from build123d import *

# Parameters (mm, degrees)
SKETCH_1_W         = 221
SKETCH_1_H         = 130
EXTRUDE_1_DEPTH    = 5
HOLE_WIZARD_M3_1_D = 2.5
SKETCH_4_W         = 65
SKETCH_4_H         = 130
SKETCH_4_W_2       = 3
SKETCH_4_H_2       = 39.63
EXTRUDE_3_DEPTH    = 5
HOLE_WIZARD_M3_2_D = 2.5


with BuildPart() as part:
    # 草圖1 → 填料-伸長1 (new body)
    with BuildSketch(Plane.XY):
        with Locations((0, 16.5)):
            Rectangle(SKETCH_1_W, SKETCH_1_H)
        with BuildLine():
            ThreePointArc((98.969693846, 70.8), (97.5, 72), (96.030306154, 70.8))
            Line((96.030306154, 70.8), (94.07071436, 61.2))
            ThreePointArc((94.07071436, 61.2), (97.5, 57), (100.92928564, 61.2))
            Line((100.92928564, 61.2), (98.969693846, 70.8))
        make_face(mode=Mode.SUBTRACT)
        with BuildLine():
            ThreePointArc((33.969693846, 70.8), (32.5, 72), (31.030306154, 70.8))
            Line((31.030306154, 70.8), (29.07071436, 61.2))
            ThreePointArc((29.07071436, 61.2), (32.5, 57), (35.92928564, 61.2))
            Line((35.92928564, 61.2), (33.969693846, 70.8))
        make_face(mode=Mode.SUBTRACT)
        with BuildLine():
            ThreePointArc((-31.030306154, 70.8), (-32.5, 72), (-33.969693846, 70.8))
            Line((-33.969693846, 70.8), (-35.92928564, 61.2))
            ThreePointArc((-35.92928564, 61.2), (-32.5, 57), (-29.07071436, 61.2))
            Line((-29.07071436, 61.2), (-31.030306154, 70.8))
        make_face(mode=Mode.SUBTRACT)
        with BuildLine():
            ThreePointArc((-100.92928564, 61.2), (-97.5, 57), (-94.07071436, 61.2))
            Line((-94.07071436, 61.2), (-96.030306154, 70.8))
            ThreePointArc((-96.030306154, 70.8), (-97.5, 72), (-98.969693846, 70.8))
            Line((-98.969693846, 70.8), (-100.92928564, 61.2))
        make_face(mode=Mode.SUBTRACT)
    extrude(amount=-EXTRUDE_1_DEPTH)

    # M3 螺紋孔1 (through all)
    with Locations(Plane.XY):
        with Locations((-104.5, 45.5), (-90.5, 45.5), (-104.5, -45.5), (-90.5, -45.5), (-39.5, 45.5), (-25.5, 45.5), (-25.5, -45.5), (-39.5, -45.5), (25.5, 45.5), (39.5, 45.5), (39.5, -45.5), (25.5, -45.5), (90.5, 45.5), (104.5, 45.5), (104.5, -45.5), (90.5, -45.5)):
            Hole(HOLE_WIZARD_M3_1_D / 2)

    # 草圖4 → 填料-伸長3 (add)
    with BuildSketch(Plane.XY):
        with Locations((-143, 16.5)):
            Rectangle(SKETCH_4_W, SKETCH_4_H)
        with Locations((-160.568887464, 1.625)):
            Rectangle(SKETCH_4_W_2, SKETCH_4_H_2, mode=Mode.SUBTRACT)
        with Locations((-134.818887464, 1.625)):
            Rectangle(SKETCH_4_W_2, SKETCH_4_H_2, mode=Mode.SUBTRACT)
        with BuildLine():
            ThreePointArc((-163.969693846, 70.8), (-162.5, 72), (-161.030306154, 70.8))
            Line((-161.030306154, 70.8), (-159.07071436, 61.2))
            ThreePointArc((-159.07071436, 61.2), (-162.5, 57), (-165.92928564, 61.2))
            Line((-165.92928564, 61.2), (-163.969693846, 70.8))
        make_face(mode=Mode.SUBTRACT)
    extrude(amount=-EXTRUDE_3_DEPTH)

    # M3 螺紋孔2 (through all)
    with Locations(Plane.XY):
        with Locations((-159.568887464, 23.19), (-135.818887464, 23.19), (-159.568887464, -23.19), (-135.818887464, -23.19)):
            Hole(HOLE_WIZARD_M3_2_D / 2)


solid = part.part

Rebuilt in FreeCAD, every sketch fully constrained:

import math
import FreeCAD as App
import Part
import Sketcher


def add_polygon(sketch, points):
    """Adds a closed chain of lines whose ends are joined by coincident constraints."""
    first, n = sketch.GeometryCount, len(points)
    for a, b in zip(points, points[1:] + points[:1]):
        sketch.addGeometry(Part.LineSegment(App.Vector(*a, 0), App.Vector(*b, 0)), False)
    for i in range(n):
        sketch.addConstraint(Sketcher.Constraint("Coincident", first + i, 2, first + (i + 1) % n, 1))

doc = App.newDocument("Part")
body = doc.addObject("PartDesign::Body", "Body")

sketch1 = body.newObject("Sketcher::SketchObject", "Sketch")
sketch1.AttachmentSupport = (doc.getObject("XY_Plane"), [""])
sketch1.MapMode = "FlatFace"
add_polygon(sketch1, [(-110.5, 81.5), (-110.5, -48.5), (110.5, -48.5), (110.5, 81.5)])
sketch1.addGeometry(Part.ArcOfCircle(Part.Circle(App.Vector(-97.5, 60.5, 0), App.Vector(0, 0, 1), 3.5), math.radians(168), math.radians(372)), False)
sketch1.addGeometry(Part.LineSegment(App.Vector(-100.9, 61.2, 0), App.Vector(-99, 70.8, 0)), False)
sketch1.addGeometry(Part.ArcOfCircle(Part.Circle(App.Vector(-97.5, 70.5, 0), App.Vector(0, 0, 1), 1.5), math.radians(12), math.radians(168)), False)
sketch1.addGeometry(Part.LineSegment(App.Vector(-96, 70.8, 0), App.Vector(-94.1, 61.2, 0)), False)
sketch1.addGeometry(Part.ArcOfCircle(Part.Circle(App.Vector(-32.5, 70.5, 0), App.Vector(0, 0, 1), 1.5), math.radians(12), math.radians(168)), False)
sketch1.addGeometry(Part.LineSegment(App.Vector(-31, 70.8, 0), App.Vector(-29.1, 61.2, 0)), False)
sketch1.addGeometry(Part.ArcOfCircle(Part.Circle(App.Vector(-32.5, 60.5, 0), App.Vector(0, 0, 1), 3.5), math.radians(168), math.radians(372)), False)
sketch1.addGeometry(Part.LineSegment(App.Vector(-35.9, 61.2, 0), App.Vector(-34, 70.8, 0)), False)
sketch1.addGeometry(Part.ArcOfCircle(Part.Circle(App.Vector(32.5, 70.5, 0), App.Vector(0, 0, 1), 1.5), math.radians(12), math.radians(168)), False)
sketch1.addGeometry(Part.LineSegment(App.Vector(34, 70.8, 0), App.Vector(35.9, 61.2, 0)), False)
sketch1.addGeometry(Part.ArcOfCircle(Part.Circle(App.Vector(32.5, 60.5, 0), App.Vector(0, 0, 1), 3.5), math.radians(168), math.radians(372)), False)
sketch1.addGeometry(Part.LineSegment(App.Vector(29.1, 61.2, 0), App.Vector(31, 70.8, 0)), False)
sketch1.addGeometry(Part.ArcOfCircle(Part.Circle(App.Vector(97.5, 70.5, 0), App.Vector(0, 0, 1), 1.5), math.radians(12), math.radians(168)), False)
sketch1.addGeometry(Part.LineSegment(App.Vector(99, 70.8, 0), App.Vector(100.9, 61.2, 0)), False)
sketch1.addGeometry(Part.ArcOfCircle(Part.Circle(App.Vector(97.5, 60.5, 0), App.Vector(0, 0, 1), 3.5), math.radians(168), math.radians(372)), False)
sketch1.addGeometry(Part.LineSegment(App.Vector(94.1, 61.2, 0), App.Vector(96, 70.8, 0)), False)
sketch1.addConstraint(Sketcher.Constraint("Tangent", 4, 1, 5, 1))
sketch1.addConstraint(Sketcher.Constraint("Tangent", 5, 2, 6, 2))
sketch1.addConstraint(Sketcher.Constraint("Tangent", 6, 1, 7, 1))
sketch1.addConstraint(Sketcher.Constraint("Tangent", 7, 2, 4, 2))
sketch1.addConstraint(Sketcher.Constraint("Tangent", 8, 1, 9, 1))
sketch1.addConstraint(Sketcher.Constraint("Tangent", 9, 2, 10, 2))
sketch1.addConstraint(Sketcher.Constraint("Tangent", 10, 1, 11, 1))
sketch1.addConstraint(Sketcher.Constraint("Tangent", 11, 2, 8, 2))
sketch1.addConstraint(Sketcher.Constraint("Tangent", 12, 1, 13, 1))
sketch1.addConstraint(Sketcher.Constraint("Tangent", 13, 2, 14, 2))
sketch1.addConstraint(Sketcher.Constraint("Tangent", 14, 1, 15, 1))
sketch1.addConstraint(Sketcher.Constraint("Tangent", 15, 2, 12, 2))
sketch1.addConstraint(Sketcher.Constraint("Tangent", 16, 1, 17, 1))
sketch1.addConstraint(Sketcher.Constraint("Tangent", 17, 2, 18, 2))
sketch1.addConstraint(Sketcher.Constraint("Tangent", 18, 1, 19, 1))
sketch1.addConstraint(Sketcher.Constraint("Tangent", 19, 2, 16, 2))
sketch1.addConstraint(Sketcher.Constraint("Vertical", 0))
sketch1.addConstraint(Sketcher.Constraint("Horizontal", 1))
sketch1.addConstraint(Sketcher.Constraint("Vertical", 2))
sketch1.addConstraint(Sketcher.Constraint("Horizontal", 3))
sketch1.addConstraint(Sketcher.Constraint("Equal", 6, 8))
sketch1.addConstraint(Sketcher.Constraint("Equal", 4, 10))
sketch1.addConstraint(Sketcher.Constraint("Equal", 8, 12))
sketch1.addConstraint(Sketcher.Constraint("Equal", 10, 14))
sketch1.addConstraint(Sketcher.Constraint("Equal", 12, 16))
sketch1.addConstraint(Sketcher.Constraint("Equal", 14, 18))
sketch1.addConstraint(Sketcher.Constraint("Symmetric", 8, 3, 12, 3, -2))
sketch1.addConstraint(Sketcher.Constraint("Symmetric", 10, 3, 14, 3, -2))
sketch1.addConstraint(Sketcher.Constraint("Symmetric", 6, 3, 16, 3, -2))
sketch1.addConstraint(Sketcher.Constraint("Symmetric", 4, 3, 18, 3, -2))
sketch1.addConstraint(Sketcher.Constraint("Parallel", 7, 9))
sketch1.addConstraint(Sketcher.Constraint("Parallel", 5, 11))
sketch1.addConstraint(Sketcher.Constraint("Parallel", 9, 13))
sketch1.addConstraint(Sketcher.Constraint("Horizontal", 6, 3, 8, 3))
sketch1.addConstraint(Sketcher.Constraint("Radius", 4, 3.5))
sketch1.addConstraint(Sketcher.Constraint("Radius", 6, 1.5))
sketch1.addConstraint(Sketcher.Constraint("DistanceX", 1, 1, 1, 2, 221.0))
sketch1.addConstraint(Sketcher.Constraint("DistanceY", 0, 2, 0, 1, 130.0))
sketch1.addConstraint(Sketcher.Constraint("DistanceY", 4, 3, 6, 3, 10.0))
sketch1.addConstraint(Sketcher.Constraint("DistanceX", 6, 3, 8, 3, 65.0))
sketch1.addConstraint(Sketcher.Constraint("DistanceX", 8, 3, 12, 3, 65.0))
sketch1.addConstraint(Sketcher.Constraint("DistanceX", 0, 2, 4, 3, 13.0))
sketch1.addConstraint(Sketcher.Constraint("DistanceY", 0, 2, 4, 3, 109.0))
sketch1.addConstraint(Sketcher.Constraint("DistanceY", -1, 1, 4, 3, 60.5))
pad1 = body.newObject("PartDesign::Pad", "Pad")
pad1.Profile = sketch1
pad1.Length = 5
pad1.Reversed = True

sketch2 = body.newObject("Sketcher::SketchObject", "Sketch001")
sketch2.AttachmentSupport = (doc.getObject("XY_Plane"), [""])
sketch2.MapMode = "FlatFace"
sketch2.addGeometry(Part.Circle(App.Vector(-104.5, 45.5, 0), App.Vector(0, 0, 1), 1.2), False)
sketch2.addGeometry(Part.Circle(App.Vector(-90.5, 45.5, 0), App.Vector(0, 0, 1), 1.2), False)
sketch2.addGeometry(Part.Circle(App.Vector(-104.5, -45.5, 0), App.Vector(0, 0, 1), 1.2), False)
sketch2.addGeometry(Part.Circle(App.Vector(-90.5, -45.5, 0), App.Vector(0, 0, 1), 1.2), False)
sketch2.addGeometry(Part.Circle(App.Vector(-39.5, 45.5, 0), App.Vector(0, 0, 1), 1.2), False)
sketch2.addGeometry(Part.Circle(App.Vector(-25.5, 45.5, 0), App.Vector(0, 0, 1), 1.2), False)
sketch2.addGeometry(Part.Circle(App.Vector(-25.5, -45.5, 0), App.Vector(0, 0, 1), 1.2), False)
sketch2.addGeometry(Part.Circle(App.Vector(-39.5, -45.5, 0), App.Vector(0, 0, 1), 1.2), False)
sketch2.addGeometry(Part.Circle(App.Vector(25.5, 45.5, 0), App.Vector(0, 0, 1), 1.2), False)
sketch2.addGeometry(Part.Circle(App.Vector(39.5, 45.5, 0), App.Vector(0, 0, 1), 1.2), False)
sketch2.addGeometry(Part.Circle(App.Vector(39.5, -45.5, 0), App.Vector(0, 0, 1), 1.2), False)
sketch2.addGeometry(Part.Circle(App.Vector(25.5, -45.5, 0), App.Vector(0, 0, 1), 1.2), False)
sketch2.addGeometry(Part.Circle(App.Vector(90.5, 45.5, 0), App.Vector(0, 0, 1), 1.2), False)
sketch2.addGeometry(Part.Circle(App.Vector(104.5, 45.5, 0), App.Vector(0, 0, 1), 1.2), False)
sketch2.addGeometry(Part.Circle(App.Vector(104.5, -45.5, 0), App.Vector(0, 0, 1), 1.2), False)
sketch2.addGeometry(Part.Circle(App.Vector(90.5, -45.5, 0), App.Vector(0, 0, 1), 1.2), False)
sketch2.addConstraint(Sketcher.Constraint("Equal", 0, 1))
sketch2.addConstraint(Sketcher.Constraint("Equal", 1, 2))
sketch2.addConstraint(Sketcher.Constraint("Equal", 2, 3))
sketch2.addConstraint(Sketcher.Constraint("Equal", 3, 4))
sketch2.addConstraint(Sketcher.Constraint("Equal", 4, 5))
sketch2.addConstraint(Sketcher.Constraint("Equal", 5, 6))
sketch2.addConstraint(Sketcher.Constraint("Equal", 6, 7))
sketch2.addConstraint(Sketcher.Constraint("Equal", 7, 8))
sketch2.addConstraint(Sketcher.Constraint("Equal", 8, 9))
sketch2.addConstraint(Sketcher.Constraint("Equal", 9, 10))
sketch2.addConstraint(Sketcher.Constraint("Equal", 10, 11))
sketch2.addConstraint(Sketcher.Constraint("Equal", 11, 12))
sketch2.addConstraint(Sketcher.Constraint("Equal", 12, 13))
sketch2.addConstraint(Sketcher.Constraint("Equal", 13, 14))
sketch2.addConstraint(Sketcher.Constraint("Equal", 14, 15))
sketch2.addConstraint(Sketcher.Constraint("Symmetric", 6, 3, 8, 3, -1, 1))
sketch2.addConstraint(Sketcher.Constraint("Symmetric", 7, 3, 9, 3, -1, 1))
sketch2.addConstraint(Sketcher.Constraint("Symmetric", 4, 3, 10, 3, -1, 1))
sketch2.addConstraint(Sketcher.Constraint("Symmetric", 5, 3, 11, 3, -1, 1))
sketch2.addConstraint(Sketcher.Constraint("Symmetric", 3, 3, 12, 3, -1, 1))
sketch2.addConstraint(Sketcher.Constraint("Symmetric", 2, 3, 13, 3, -1, 1))
sketch2.addConstraint(Sketcher.Constraint("Symmetric", 0, 3, 14, 3, -1, 1))
sketch2.addConstraint(Sketcher.Constraint("Symmetric", 1, 3, 15, 3, -1, 1))
sketch2.addConstraint(Sketcher.Constraint("Symmetric", 5, 3, 8, 3, -2))
sketch2.addConstraint(Sketcher.Constraint("Symmetric", 4, 3, 9, 3, -2))
sketch2.addConstraint(Sketcher.Constraint("Symmetric", 1, 3, 12, 3, -2))
sketch2.addConstraint(Sketcher.Constraint("Symmetric", 0, 3, 13, 3, -2))
sketch2.addConstraint(Sketcher.Constraint("Horizontal", 0, 3, 1, 3))
sketch2.addConstraint(Sketcher.Constraint("Horizontal", 1, 3, 4, 3))
sketch2.addConstraint(Sketcher.Constraint("Horizontal", 4, 3, 5, 3))
sketch2.addConstraint(Sketcher.Constraint("Diameter", 0, 2.5))
sketch2.addConstraint(Sketcher.Constraint("DistanceX", 0, 3, 1, 3, 14.0))
sketch2.addConstraint(Sketcher.Constraint("DistanceY", 2, 3, 0, 3, 91.0))
sketch2.addConstraint(Sketcher.Constraint("DistanceX", 1, 3, 4, 3, 51.0))
sketch2.addConstraint(Sketcher.Constraint("DistanceX", 4, 3, 5, 3, 14.0))
sketch2.addConstraint(Sketcher.Constraint("DistanceX", 5, 3, 8, 3, 51.0))
doc.recompute()
hole = body.newObject("PartDesign::Hole", "Hole")
hole.Profile = sketch2
hole.ThreadType = "None"
hole.Diameter = 2.5
hole.DepthType = "ThroughAll"

sketch3 = body.newObject("Sketcher::SketchObject", "Sketch002")
sketch3.AttachmentSupport = (doc.getObject("XY_Plane"), [""])
sketch3.MapMode = "FlatFace"
add_polygon(sketch3, [(-175.5, 81.5), (-175.5, -48.5), (-110.5, -48.5), (-110.5, 81.5)])
add_polygon(sketch3, [(-159.1, -18.2), (-162.1, -18.2), (-162.1, 21.4), (-159.1, 21.4)])
add_polygon(sketch3, [(-133.3, -18.2), (-136.3, -18.2), (-136.3, 21.4), (-133.3, 21.4)])
sketch3.addGeometry(Part.LineSegment(App.Vector(-165.9, 61.2, 0), App.Vector(-164, 70.8, 0)), False)
sketch3.addGeometry(Part.ArcOfCircle(Part.Circle(App.Vector(-162.5, 70.5, 0), App.Vector(0, 0, 1), 1.5), math.radians(12), math.radians(168)), False)
sketch3.addGeometry(Part.LineSegment(App.Vector(-161, 70.8, 0), App.Vector(-159.1, 61.2, 0)), False)
sketch3.addGeometry(Part.ArcOfCircle(Part.Circle(App.Vector(-162.5, 60.5, 0), App.Vector(0, 0, 1), 3.5), math.radians(168), math.radians(372)), False)
sketch3.addConstraint(Sketcher.Constraint("Tangent", 12, 2, 13, 2))
sketch3.addConstraint(Sketcher.Constraint("Tangent", 13, 1, 14, 1))
sketch3.addConstraint(Sketcher.Constraint("Tangent", 14, 2, 15, 2))
sketch3.addConstraint(Sketcher.Constraint("Tangent", 15, 1, 12, 1))
sketch3.addConstraint(Sketcher.Constraint("Vertical", 0))
sketch3.addConstraint(Sketcher.Constraint("Horizontal", 1))
sketch3.addConstraint(Sketcher.Constraint("Vertical", 2))
sketch3.addConstraint(Sketcher.Constraint("Horizontal", 3))
sketch3.addConstraint(Sketcher.Constraint("Horizontal", 4))
sketch3.addConstraint(Sketcher.Constraint("Vertical", 5))
sketch3.addConstraint(Sketcher.Constraint("Horizontal", 6))
sketch3.addConstraint(Sketcher.Constraint("Vertical", 7))
sketch3.addConstraint(Sketcher.Constraint("Horizontal", 8))
sketch3.addConstraint(Sketcher.Constraint("Vertical", 9))
sketch3.addConstraint(Sketcher.Constraint("Horizontal", 10))
sketch3.addConstraint(Sketcher.Constraint("Vertical", 11))
sketch3.addConstraint(Sketcher.Constraint("Horizontal", 7, 2, 8, 2))
sketch3.addConstraint(Sketcher.Constraint("Horizontal", 6, 2, 9, 2))
sketch3.addConstraint(Sketcher.Constraint("Horizontal", 12, 2, 13, 1))
sketch3.addConstraint(Sketcher.Constraint("Equal", 6, 8))
sketch3.addConstraint(Sketcher.Constraint("Radius", 13, 1.5))
sketch3.addConstraint(Sketcher.Constraint("Radius", 15, 3.5))
sketch3.addConstraint(Sketcher.Constraint("DistanceX", 1, 1, 1, 2, 65.0))
sketch3.addConstraint(Sketcher.Constraint("DistanceX", 4, 2, 4, 1, 3.0))
sketch3.addConstraint(Sketcher.Constraint("DistanceY", 0, 2, 0, 1, 130.0))
sketch3.addConstraint(Sketcher.Constraint("DistanceY", 15, 3, 13, 3, 10.0))
sketch3.addConstraint(Sketcher.Constraint("DistanceX", 0, 2, 15, 3, 13.0))
sketch3.addConstraint(Sketcher.Constraint("DistanceY", 0, 2, 15, 3, 109.0))
sketch3.addConstraint(Sketcher.Constraint("DistanceY", 5, 1, 5, 2, 39.63))
sketch3.addConstraint(Sketcher.Constraint("DistanceX", 13, 3, -1, 1, 162.5))
sketch3.addConstraint(Sketcher.Constraint("DistanceY", -1, 1, 13, 3, 70.5))
sketch3.addConstraint(Sketcher.Constraint("DistanceY", 4, 2, -1, 1, 18.19))
sketch3.addConstraint(Sketcher.Constraint("DistanceX", 7, 2, 8, 2, 22.75))
sketch3.addConstraint(Sketcher.Constraint("DistanceX", 5, 2, 13, 1, 1.038581))
pad2 = body.newObject("PartDesign::Pad", "Pad001")
pad2.Profile = sketch3
pad2.Length = 5
pad2.Reversed = True

sketch4 = body.newObject("Sketcher::SketchObject", "Sketch003")
sketch4.AttachmentSupport = (doc.getObject("XY_Plane"), [""])
sketch4.MapMode = "FlatFace"
sketch4.addGeometry(Part.Circle(App.Vector(-159.6, 23.2, 0), App.Vector(0, 0, 1), 1.2), False)
sketch4.addGeometry(Part.Circle(App.Vector(-135.8, 23.2, 0), App.Vector(0, 0, 1), 1.2), False)
sketch4.addGeometry(Part.Circle(App.Vector(-159.6, -23.2, 0), App.Vector(0, 0, 1), 1.2), False)
sketch4.addGeometry(Part.Circle(App.Vector(-135.8, -23.2, 0), App.Vector(0, 0, 1), 1.2), False)
sketch4.addConstraint(Sketcher.Constraint("Equal", 0, 1))
sketch4.addConstraint(Sketcher.Constraint("Equal", 1, 2))
sketch4.addConstraint(Sketcher.Constraint("Equal", 2, 3))
sketch4.addConstraint(Sketcher.Constraint("Symmetric", 0, 3, 2, 3, -1))
sketch4.addConstraint(Sketcher.Constraint("Symmetric", 1, 3, 3, 3, -1))
sketch4.addConstraint(Sketcher.Constraint("Horizontal", 0, 3, 1, 3))
sketch4.addConstraint(Sketcher.Constraint("Diameter", 0, 2.5))
sketch4.addConstraint(Sketcher.Constraint("DistanceY", -1, 1, 0, 3, 23.19))
sketch4.addConstraint(Sketcher.Constraint("DistanceX", 0, 3, 1, 3, 23.75))
sketch4.addConstraint(Sketcher.Constraint("DistanceX", 0, 3, -1, 1, 159.568887))
doc.recompute()
hole2 = body.newObject("PartDesign::Hole", "Hole001")
hole2.Profile = sketch4
hole2.ThreadType = "None"
hole2.Diameter = 2.5
hole2.DepthType = "ThroughAll"

doc.recompute()
